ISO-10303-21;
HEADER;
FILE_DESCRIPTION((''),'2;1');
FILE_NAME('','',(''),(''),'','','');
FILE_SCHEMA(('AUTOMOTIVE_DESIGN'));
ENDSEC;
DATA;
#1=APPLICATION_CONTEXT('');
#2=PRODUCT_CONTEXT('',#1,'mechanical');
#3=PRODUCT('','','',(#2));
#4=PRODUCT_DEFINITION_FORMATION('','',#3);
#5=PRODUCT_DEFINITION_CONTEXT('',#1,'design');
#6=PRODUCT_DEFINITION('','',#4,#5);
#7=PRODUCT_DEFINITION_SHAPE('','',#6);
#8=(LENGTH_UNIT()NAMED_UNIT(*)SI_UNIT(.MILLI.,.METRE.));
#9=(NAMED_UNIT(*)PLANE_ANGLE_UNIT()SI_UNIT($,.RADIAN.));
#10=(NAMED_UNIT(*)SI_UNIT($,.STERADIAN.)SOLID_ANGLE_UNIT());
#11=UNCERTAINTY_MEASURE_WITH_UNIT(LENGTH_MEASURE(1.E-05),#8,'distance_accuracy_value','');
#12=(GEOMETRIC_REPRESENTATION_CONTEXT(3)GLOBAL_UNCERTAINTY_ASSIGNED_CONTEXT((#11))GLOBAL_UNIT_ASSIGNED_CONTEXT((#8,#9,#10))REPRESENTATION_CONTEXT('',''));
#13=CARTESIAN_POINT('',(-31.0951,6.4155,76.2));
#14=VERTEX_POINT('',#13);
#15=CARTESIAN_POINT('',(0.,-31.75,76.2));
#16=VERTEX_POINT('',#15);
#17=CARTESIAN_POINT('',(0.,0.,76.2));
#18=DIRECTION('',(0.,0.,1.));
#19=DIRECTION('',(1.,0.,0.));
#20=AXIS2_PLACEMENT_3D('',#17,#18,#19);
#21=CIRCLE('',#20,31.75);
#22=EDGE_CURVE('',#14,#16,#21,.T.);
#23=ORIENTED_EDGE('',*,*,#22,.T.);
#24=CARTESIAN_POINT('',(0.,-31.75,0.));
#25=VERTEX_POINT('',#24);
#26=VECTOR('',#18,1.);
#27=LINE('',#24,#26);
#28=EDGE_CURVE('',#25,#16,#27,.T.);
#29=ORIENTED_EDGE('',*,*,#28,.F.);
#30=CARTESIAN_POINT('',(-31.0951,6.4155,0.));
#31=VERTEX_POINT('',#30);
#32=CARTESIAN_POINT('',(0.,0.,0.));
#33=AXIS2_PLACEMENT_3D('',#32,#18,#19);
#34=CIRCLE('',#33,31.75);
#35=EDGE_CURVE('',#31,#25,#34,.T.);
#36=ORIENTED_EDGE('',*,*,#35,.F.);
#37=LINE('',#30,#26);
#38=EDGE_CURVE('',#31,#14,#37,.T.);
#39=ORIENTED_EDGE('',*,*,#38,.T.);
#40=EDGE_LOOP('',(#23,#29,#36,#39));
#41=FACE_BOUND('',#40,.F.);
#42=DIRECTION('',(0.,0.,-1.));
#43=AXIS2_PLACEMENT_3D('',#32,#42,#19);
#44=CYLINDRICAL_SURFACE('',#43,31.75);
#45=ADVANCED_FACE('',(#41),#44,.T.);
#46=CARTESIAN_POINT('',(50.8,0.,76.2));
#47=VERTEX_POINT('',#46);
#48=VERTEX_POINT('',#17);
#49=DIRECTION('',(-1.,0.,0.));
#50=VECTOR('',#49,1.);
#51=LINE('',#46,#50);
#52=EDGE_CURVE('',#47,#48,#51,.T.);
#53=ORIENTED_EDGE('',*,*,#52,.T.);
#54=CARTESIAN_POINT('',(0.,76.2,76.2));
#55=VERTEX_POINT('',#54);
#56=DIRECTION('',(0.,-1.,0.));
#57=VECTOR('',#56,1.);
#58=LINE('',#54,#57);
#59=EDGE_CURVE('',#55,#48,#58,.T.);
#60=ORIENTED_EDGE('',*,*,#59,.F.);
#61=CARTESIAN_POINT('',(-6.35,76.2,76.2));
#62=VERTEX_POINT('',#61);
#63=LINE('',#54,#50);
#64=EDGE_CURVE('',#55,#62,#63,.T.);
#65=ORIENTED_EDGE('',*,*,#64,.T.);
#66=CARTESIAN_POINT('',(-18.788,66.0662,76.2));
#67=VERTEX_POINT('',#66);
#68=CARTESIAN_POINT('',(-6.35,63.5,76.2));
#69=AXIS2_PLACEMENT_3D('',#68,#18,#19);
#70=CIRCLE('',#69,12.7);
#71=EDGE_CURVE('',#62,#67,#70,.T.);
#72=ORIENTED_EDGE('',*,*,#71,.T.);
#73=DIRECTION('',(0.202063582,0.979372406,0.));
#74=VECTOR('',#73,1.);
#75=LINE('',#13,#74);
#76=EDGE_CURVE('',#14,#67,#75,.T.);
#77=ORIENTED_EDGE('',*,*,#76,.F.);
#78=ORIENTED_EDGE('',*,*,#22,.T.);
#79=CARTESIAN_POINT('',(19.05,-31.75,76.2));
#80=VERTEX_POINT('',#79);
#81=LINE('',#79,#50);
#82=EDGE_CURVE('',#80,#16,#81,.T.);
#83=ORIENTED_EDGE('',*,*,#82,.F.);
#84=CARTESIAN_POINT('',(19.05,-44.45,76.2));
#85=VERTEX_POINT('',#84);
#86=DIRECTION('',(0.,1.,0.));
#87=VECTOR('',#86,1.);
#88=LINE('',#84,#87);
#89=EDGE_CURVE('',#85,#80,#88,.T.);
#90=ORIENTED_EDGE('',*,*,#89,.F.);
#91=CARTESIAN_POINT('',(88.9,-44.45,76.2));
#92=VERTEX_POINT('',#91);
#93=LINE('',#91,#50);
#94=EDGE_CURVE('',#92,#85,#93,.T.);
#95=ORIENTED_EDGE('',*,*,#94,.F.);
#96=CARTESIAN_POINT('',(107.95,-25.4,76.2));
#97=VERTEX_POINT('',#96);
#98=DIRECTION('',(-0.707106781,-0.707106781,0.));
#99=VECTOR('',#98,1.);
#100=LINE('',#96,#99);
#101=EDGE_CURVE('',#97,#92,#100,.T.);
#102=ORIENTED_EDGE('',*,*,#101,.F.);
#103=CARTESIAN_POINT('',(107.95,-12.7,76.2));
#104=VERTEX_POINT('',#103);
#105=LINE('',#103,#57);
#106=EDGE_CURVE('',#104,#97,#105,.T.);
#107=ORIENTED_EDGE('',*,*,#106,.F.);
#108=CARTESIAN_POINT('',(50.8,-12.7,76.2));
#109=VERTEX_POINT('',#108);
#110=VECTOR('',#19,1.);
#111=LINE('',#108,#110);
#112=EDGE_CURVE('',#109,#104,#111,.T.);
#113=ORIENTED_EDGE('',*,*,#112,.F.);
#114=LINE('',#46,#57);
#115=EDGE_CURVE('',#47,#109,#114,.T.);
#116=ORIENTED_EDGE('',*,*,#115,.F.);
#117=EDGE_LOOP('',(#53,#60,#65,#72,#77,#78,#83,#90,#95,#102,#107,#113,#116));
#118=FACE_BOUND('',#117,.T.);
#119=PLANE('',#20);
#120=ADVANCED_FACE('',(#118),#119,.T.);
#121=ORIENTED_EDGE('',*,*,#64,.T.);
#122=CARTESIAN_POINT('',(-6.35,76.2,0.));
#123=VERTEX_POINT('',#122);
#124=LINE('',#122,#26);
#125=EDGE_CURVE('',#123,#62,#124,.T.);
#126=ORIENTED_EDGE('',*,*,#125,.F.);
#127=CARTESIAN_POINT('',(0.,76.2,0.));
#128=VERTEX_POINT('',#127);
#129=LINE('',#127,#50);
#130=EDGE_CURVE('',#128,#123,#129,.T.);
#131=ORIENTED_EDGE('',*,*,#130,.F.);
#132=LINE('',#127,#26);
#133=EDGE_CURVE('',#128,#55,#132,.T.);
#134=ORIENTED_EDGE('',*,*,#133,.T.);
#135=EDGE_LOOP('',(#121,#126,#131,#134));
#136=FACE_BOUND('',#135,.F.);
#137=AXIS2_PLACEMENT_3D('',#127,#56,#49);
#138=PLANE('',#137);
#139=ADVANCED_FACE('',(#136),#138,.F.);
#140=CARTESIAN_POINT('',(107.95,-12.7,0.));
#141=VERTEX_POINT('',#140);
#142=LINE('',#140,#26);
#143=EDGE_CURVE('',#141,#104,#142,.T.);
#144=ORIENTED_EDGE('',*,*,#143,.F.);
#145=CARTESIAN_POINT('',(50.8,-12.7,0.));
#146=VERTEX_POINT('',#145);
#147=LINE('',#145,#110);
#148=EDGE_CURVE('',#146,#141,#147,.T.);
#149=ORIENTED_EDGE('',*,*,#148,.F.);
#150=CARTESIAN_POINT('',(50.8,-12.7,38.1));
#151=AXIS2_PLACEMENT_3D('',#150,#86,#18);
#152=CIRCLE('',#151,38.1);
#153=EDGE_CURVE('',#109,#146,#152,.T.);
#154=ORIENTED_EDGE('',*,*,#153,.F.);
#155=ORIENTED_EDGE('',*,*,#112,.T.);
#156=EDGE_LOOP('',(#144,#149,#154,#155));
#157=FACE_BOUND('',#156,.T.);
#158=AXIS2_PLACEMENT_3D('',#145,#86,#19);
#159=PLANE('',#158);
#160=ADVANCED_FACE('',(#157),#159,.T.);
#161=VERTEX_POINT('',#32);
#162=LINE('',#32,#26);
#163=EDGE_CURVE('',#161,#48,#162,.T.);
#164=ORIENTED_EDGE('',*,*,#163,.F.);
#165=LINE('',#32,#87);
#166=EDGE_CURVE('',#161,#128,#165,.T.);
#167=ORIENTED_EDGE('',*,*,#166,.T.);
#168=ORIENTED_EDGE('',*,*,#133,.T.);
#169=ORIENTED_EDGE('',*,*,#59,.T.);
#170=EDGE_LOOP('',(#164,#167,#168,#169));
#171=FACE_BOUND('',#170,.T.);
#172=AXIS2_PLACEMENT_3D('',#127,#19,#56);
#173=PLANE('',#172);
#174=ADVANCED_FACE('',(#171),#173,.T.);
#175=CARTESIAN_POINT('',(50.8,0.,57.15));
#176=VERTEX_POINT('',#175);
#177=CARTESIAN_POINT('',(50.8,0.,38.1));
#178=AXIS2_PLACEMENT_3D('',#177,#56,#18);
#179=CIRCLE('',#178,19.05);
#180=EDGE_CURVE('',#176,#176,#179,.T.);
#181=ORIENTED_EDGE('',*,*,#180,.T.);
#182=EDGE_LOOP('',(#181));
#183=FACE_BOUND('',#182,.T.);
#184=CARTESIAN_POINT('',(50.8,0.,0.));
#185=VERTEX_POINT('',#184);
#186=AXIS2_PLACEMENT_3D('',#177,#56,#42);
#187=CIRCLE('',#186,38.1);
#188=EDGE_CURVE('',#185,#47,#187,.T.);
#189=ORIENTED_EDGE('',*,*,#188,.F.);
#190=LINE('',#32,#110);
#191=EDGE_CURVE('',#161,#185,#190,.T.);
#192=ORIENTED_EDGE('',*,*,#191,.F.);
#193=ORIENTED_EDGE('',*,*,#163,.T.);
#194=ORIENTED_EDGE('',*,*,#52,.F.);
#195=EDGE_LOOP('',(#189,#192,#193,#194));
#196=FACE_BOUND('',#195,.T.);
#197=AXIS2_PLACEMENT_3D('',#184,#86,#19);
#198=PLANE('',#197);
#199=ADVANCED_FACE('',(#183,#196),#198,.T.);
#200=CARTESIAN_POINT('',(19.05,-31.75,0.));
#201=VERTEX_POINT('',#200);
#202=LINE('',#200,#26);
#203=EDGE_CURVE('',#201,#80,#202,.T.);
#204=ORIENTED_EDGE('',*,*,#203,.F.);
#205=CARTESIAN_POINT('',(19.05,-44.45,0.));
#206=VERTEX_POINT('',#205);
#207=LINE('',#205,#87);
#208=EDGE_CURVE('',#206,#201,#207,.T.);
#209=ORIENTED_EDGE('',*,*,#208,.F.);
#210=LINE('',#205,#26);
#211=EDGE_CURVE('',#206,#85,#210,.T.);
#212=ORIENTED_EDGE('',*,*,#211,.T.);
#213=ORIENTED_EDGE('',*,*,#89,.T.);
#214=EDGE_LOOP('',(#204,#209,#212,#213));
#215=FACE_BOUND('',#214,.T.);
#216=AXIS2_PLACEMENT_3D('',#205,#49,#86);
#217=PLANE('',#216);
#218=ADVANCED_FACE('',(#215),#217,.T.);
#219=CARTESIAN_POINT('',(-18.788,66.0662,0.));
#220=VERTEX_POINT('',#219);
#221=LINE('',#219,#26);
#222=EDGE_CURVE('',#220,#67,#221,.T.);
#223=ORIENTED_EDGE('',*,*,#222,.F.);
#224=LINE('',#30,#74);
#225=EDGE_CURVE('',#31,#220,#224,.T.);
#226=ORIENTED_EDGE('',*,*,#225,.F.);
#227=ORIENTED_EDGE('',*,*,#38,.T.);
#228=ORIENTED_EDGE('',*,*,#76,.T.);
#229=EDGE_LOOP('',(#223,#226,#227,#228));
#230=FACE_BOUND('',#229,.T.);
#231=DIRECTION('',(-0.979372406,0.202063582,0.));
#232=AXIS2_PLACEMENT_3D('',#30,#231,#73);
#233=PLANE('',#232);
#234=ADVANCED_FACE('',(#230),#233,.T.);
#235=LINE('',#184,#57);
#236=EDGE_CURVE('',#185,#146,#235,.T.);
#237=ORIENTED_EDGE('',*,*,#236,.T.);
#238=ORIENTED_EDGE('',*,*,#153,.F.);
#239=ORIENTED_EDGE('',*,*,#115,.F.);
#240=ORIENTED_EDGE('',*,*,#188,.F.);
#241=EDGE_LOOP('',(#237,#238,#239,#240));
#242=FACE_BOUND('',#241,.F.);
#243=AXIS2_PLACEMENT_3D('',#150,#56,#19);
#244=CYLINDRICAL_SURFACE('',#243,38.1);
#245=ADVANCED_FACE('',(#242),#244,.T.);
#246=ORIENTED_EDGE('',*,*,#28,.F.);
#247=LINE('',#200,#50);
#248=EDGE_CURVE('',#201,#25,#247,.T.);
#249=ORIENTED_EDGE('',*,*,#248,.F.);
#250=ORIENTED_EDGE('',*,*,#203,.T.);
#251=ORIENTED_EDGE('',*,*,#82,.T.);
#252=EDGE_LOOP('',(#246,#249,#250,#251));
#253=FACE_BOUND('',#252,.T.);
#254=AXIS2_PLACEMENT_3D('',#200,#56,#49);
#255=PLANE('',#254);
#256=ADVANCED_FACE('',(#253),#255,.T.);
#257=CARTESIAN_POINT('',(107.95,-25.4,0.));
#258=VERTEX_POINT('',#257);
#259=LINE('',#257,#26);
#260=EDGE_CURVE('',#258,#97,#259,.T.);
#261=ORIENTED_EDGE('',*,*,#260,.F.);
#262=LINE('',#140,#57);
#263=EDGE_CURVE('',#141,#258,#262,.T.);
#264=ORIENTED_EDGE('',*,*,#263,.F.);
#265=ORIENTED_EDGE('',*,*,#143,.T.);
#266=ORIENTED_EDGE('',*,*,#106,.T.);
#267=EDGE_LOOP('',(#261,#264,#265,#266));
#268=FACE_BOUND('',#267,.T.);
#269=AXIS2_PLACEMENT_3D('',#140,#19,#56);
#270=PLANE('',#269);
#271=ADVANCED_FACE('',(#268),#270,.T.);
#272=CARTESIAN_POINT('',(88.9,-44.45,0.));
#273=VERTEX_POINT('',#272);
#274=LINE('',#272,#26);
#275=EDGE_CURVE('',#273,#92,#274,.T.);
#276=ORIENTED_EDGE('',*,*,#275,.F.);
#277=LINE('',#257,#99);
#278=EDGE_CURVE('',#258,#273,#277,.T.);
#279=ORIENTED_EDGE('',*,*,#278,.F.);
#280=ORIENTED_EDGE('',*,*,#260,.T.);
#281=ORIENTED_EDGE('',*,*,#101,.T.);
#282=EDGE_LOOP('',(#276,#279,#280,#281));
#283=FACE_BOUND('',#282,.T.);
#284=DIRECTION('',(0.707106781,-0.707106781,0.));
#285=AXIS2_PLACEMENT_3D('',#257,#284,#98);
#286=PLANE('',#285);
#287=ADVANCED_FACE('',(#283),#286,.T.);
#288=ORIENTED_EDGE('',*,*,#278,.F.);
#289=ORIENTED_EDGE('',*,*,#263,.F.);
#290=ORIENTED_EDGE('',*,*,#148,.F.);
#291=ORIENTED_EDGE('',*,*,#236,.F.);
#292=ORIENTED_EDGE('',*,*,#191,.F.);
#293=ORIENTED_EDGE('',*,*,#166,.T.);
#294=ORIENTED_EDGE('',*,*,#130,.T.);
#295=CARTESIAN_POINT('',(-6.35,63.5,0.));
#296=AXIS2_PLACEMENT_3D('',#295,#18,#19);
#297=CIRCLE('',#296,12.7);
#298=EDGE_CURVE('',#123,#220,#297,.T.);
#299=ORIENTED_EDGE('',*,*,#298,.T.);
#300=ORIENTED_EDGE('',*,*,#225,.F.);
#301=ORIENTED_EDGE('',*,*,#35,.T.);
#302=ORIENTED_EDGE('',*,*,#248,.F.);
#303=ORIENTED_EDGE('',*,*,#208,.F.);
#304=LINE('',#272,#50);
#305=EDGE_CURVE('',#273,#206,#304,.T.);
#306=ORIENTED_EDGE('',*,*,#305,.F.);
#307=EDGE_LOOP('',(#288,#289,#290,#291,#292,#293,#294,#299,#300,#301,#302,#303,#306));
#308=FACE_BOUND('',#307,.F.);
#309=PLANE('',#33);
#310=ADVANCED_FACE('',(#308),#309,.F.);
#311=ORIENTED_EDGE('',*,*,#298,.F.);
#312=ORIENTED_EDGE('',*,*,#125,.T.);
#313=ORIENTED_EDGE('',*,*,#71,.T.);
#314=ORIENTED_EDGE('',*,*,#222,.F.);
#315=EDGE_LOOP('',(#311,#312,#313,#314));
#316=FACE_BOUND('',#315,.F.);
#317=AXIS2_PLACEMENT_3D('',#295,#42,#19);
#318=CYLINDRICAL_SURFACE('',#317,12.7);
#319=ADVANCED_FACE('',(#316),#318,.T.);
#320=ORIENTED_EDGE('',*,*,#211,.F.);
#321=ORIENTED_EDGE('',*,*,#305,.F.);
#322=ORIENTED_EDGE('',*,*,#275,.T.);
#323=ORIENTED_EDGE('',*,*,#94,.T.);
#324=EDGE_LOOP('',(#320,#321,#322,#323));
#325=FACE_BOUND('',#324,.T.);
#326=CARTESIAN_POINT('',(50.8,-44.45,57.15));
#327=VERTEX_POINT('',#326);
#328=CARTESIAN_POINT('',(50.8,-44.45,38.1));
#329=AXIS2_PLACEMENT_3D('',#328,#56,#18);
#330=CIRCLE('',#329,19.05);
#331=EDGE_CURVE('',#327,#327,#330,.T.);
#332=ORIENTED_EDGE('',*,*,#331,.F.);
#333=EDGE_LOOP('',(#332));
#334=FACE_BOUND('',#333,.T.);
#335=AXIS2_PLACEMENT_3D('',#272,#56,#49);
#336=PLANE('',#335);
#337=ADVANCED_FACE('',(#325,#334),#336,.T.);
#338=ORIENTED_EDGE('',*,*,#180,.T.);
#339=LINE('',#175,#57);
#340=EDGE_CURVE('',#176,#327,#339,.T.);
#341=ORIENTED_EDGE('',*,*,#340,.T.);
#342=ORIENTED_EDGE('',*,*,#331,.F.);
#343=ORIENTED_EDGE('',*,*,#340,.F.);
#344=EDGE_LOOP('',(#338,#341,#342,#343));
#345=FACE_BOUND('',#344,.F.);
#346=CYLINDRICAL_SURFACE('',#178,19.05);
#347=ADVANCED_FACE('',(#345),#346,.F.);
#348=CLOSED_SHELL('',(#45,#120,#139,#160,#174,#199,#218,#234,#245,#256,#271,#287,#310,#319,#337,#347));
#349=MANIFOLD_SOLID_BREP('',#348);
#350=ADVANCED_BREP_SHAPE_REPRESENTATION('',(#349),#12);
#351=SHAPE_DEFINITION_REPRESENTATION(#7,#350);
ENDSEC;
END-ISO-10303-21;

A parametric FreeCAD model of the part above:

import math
import FreeCAD as App
import Part
import Sketcher

V = App.Vector
Q = App.Units.Quantity

doc = App.newDocument("Part")
body = doc.addObject("PartDesign::Body", "Body")

# Sketch on XY plane
sketch1 = body.newObject("Sketcher::SketchObject", "Sketch")
sketch1.AttachmentSupport = (doc.getObject("XY_Plane"), [""])
sketch1.MapMode = "FlatFace"
sketch1.addGeometry([
    Part.LineSegment(V(0, 76.2, 0), V(-6.35, 76.2, 0)),  # 0
    Part.ArcOfCircle(Part.Circle(V(-6.35, 63.5, 0), V(0, 0, 1), 12.7), math.radians(90), math.radians(168.342348)),  # 1
    Part.LineSegment(V(-18.788, 66.0662, 0), V(-31.0951, 6.4155, 0)),  # 2
    Part.ArcOfCircle(Part.Circle(V(0, 0, 0), V(0, 0, 1), 31.75), math.radians(168.342385), math.radians(270)),  # 3
    Part.LineSegment(V(0, -31.75, 0), V(19.05, -31.75, 0)),  # 4
    Part.LineSegment(V(19.05, -31.75, 0), V(19.05, -44.45, 0)),  # 5
    Part.LineSegment(V(19.05, -44.45, 0), V(88.9, -44.45, 0)),  # 6
    Part.LineSegment(V(88.9, -44.45, 0), V(107.95, -25.4, 0)),  # 7
    Part.LineSegment(V(107.95, -25.4, 0), V(107.95, -12.7, 0)),  # 8
    Part.LineSegment(V(107.95, -12.7, 0), V(50.8, -12.7, 0)),  # 9
    Part.LineSegment(V(50.8, -12.7, 0), V(50.8, 0, 0)),  # 10
    Part.LineSegment(V(50.8, 0, 0), V(0, 0, 0)),  # 11
    Part.LineSegment(V(0, 0, 0), V(0, 76.2, 0)),  # 12
], False)
sketch1.addConstraint([
    Sketcher.Constraint("Tangent", 0, 2, 1, 1),
    Sketcher.Constraint("Tangent", 1, 2, 2, 1),
    Sketcher.Constraint("Tangent", 2, 2, 3, 1),
    Sketcher.Constraint("Tangent", 3, 2, 4, 1),
    Sketcher.Constraint("Coincident", 4, 2, 5, 1),
    Sketcher.Constraint("Coincident", 5, 2, 6, 1),
    Sketcher.Constraint("Coincident", 6, 2, 7, 1),
    Sketcher.Constraint("Coincident", 7, 2, 8, 1),
    Sketcher.Constraint("Coincident", 8, 2, 9, 1),
    Sketcher.Constraint("Coincident", 9, 2, 10, 1),
    Sketcher.Constraint("Coincident", 10, 2, 11, 1),
    Sketcher.Constraint("Coincident", 11, 2, 12, 1),
    Sketcher.Constraint("Coincident", 12, 2, 0, 1),
    Sketcher.Constraint("Horizontal", 0),
    Sketcher.Constraint("Horizontal", 4),
    Sketcher.Constraint("Vertical", 5),
    Sketcher.Constraint("Horizontal", 6),
    Sketcher.Constraint("Vertical", 8),
    Sketcher.Constraint("Horizontal", 9),
    Sketcher.Constraint("Vertical", 10),
    Sketcher.Constraint("Horizontal", 11),
    Sketcher.Constraint("Vertical", 12),
    Sketcher.Constraint("Coincident", 3, 3, -1, 1),
    Sketcher.Constraint("Coincident", 11, 2, -1, 1),
    Sketcher.Constraint("Equal", 5, 8),
    Sketcher.Constraint("Equal", 8, 10),
    Sketcher.Constraint("Radius", 1, Q("0.5 in")),
    Sketcher.Constraint("DistanceX", 11, 2, 11, 1, Q("2 in")),
    Sketcher.Constraint("DistanceY", 12, 1, 12, 2, Q("3 in")),
    Sketcher.Constraint("Radius", 3, Q("1.25 in")),
    Sketcher.Constraint("DistanceY", 5, 2, 5, 1, Q("0.5 in")),
    Sketcher.Constraint("DistanceX", 1, 3, 4, 2, Q("1 in")),
    Sketcher.Constraint("DistanceX", 0, 2, 0, 1, Q("0.25 in")),
    Sketcher.Constraint("DistanceX", 6, 1, 6, 2, Q("2.75 in")),
    Sketcher.Constraint("DistanceX", -1, 1, 7, 2, Q("4.25 in")),
])
pad1 = body.newObject("PartDesign::Pad", "Pad")
pad1.Profile = sketch1
pad1.Length = Q("3 in")

# Sketch on XZ plane
sketch2 = body.newObject("Sketcher::SketchObject", "Sketch001")
sketch2.AttachmentSupport = (doc.getObject("XZ_Plane"), [""])
sketch2.MapMode = "FlatFace"
sketch2.AttachmentOffset = App.Placement(V(0, 0, 0.5 * 25.4), App.Rotation())
sketch2.addGeometry(Part.Circle(V(50.8, 38.1, 0), V(0, 0, 1), 38.1), False)
sketch2.addConstraint([
    Sketcher.Constraint("Diameter", 0, Q("3 in")),
    Sketcher.Constraint("DistanceX", -1, 1, 0, 3, Q("2 in")),
    Sketcher.Constraint("DistanceY", -1, 1, 0, 3, Q("1.5 in")),
])
pad2 = body.newObject("PartDesign::Pad", "Pad001")
pad2.Profile = sketch2
pad2.Length = Q("0.5 in")
pad2.Reversed = True

# Sketch on XZ plane
sketch3 = body.newObject("Sketcher::SketchObject", "Sketch002")
sketch3.AttachmentSupport = (doc.getObject("XZ_Plane"), [""])
sketch3.MapMode = "FlatFace"
sketch3.addGeometry(Part.Circle(V(50.8, 38.1, 0), V(0, 0, 1), 19.05), False)
sketch3.addConstraint([
    Sketcher.Constraint("Diameter", 0, Q("1.5 in")),
    Sketcher.Constraint("DistanceX", -1, 1, 0, 3, Q("2 in")),
    Sketcher.Constraint("DistanceY", -1, 1, 0, 3, Q("1.5 in")),
])
doc.recompute()
hole = body.newObject("PartDesign::Hole", "Hole")
hole.Profile = sketch3
hole.ThreadType = "None"
hole.Diameter = Q("1.5 in")
hole.DepthType = "ThroughAll"
hole.Reversed = True

doc.recompute()
